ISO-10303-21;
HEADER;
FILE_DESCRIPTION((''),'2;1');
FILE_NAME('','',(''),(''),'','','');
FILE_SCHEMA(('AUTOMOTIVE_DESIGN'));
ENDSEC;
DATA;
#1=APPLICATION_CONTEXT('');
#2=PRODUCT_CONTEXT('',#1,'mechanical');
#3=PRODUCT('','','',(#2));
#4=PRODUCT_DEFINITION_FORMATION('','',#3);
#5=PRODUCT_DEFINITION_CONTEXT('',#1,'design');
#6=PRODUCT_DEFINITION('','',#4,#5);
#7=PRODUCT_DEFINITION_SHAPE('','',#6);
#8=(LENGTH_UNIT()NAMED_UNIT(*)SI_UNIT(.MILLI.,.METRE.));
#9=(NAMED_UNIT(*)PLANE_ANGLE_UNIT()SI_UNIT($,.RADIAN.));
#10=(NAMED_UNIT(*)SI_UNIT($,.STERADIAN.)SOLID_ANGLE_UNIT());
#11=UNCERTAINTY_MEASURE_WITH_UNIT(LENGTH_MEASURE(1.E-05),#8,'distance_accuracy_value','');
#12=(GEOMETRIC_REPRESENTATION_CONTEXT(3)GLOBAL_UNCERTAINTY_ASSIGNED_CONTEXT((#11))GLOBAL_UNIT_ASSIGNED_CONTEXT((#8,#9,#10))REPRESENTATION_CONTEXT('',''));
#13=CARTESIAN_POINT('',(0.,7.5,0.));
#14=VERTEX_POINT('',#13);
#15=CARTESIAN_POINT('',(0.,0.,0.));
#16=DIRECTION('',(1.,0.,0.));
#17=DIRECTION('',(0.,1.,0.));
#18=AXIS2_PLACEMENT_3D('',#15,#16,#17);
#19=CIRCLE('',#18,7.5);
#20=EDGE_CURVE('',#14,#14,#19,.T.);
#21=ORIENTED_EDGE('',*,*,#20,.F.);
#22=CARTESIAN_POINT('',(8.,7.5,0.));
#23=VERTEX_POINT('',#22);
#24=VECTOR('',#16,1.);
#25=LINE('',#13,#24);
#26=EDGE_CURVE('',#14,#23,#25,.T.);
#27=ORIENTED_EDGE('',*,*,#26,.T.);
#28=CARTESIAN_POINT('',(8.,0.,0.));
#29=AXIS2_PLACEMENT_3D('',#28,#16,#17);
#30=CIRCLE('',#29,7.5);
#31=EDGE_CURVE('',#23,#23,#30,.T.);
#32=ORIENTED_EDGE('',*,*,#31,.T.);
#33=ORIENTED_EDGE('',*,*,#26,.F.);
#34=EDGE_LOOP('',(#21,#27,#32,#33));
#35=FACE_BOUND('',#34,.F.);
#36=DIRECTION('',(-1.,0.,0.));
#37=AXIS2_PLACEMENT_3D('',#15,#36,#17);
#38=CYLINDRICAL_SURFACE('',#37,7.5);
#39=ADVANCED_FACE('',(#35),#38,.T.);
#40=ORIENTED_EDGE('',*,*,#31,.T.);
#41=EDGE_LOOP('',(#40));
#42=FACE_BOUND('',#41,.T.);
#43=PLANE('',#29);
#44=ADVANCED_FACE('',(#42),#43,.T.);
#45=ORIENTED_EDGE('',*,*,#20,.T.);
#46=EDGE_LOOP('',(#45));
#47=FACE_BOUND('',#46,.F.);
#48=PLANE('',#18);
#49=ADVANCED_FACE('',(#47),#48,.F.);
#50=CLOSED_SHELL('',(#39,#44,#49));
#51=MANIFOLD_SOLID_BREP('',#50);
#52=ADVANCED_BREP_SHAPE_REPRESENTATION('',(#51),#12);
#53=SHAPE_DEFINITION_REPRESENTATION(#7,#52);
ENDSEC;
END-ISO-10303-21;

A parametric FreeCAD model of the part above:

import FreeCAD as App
import Part
import Sketcher
Q = App.Units.Quantity

doc = App.newDocument("Part")
params = doc.addObject("Spreadsheet::Sheet", "Params")
for row, (alias, value) in enumerate([
    ("sketch1_diameter", "15 mm"),
    ("pad1_length", "8 mm"),
], start=1):
    params.set(f"A{row}", alias)
    params.set(f"B{row}", "=" + value)
    params.setAlias(f"B{row}", alias)

body = doc.addObject("PartDesign::Body", "Body")

# Sketch on YZ plane
sketch1 = doc.addObject("Sketcher::SketchObject", "Sketch")
body.addObject(sketch1)
sketch1.AttachmentSupport = (doc.YZ_Plane, [""])
sketch1.MapMode = "FlatFace"
sketch1.addGeometry(Part.Circle(App.Vector(0, 0, 0), App.Vector(0, 0, 1), 8), False)
sketch1.addConstraint([
    Sketcher.Constraint("Coincident", 0, 3, -1, 1),
    Sketcher.Constraint("Diameter", 0, Q("15 mm")),
])
sketch1.setExpression("Constraints[1]", "Params.sketch1_diameter")
pad1 = doc.addObject("PartDesign::Pad", "Pad")
body.addObject(pad1)
pad1.Profile = sketch1
pad1.setExpression("Length", "Params.pad1_length")

doc.recompute()
